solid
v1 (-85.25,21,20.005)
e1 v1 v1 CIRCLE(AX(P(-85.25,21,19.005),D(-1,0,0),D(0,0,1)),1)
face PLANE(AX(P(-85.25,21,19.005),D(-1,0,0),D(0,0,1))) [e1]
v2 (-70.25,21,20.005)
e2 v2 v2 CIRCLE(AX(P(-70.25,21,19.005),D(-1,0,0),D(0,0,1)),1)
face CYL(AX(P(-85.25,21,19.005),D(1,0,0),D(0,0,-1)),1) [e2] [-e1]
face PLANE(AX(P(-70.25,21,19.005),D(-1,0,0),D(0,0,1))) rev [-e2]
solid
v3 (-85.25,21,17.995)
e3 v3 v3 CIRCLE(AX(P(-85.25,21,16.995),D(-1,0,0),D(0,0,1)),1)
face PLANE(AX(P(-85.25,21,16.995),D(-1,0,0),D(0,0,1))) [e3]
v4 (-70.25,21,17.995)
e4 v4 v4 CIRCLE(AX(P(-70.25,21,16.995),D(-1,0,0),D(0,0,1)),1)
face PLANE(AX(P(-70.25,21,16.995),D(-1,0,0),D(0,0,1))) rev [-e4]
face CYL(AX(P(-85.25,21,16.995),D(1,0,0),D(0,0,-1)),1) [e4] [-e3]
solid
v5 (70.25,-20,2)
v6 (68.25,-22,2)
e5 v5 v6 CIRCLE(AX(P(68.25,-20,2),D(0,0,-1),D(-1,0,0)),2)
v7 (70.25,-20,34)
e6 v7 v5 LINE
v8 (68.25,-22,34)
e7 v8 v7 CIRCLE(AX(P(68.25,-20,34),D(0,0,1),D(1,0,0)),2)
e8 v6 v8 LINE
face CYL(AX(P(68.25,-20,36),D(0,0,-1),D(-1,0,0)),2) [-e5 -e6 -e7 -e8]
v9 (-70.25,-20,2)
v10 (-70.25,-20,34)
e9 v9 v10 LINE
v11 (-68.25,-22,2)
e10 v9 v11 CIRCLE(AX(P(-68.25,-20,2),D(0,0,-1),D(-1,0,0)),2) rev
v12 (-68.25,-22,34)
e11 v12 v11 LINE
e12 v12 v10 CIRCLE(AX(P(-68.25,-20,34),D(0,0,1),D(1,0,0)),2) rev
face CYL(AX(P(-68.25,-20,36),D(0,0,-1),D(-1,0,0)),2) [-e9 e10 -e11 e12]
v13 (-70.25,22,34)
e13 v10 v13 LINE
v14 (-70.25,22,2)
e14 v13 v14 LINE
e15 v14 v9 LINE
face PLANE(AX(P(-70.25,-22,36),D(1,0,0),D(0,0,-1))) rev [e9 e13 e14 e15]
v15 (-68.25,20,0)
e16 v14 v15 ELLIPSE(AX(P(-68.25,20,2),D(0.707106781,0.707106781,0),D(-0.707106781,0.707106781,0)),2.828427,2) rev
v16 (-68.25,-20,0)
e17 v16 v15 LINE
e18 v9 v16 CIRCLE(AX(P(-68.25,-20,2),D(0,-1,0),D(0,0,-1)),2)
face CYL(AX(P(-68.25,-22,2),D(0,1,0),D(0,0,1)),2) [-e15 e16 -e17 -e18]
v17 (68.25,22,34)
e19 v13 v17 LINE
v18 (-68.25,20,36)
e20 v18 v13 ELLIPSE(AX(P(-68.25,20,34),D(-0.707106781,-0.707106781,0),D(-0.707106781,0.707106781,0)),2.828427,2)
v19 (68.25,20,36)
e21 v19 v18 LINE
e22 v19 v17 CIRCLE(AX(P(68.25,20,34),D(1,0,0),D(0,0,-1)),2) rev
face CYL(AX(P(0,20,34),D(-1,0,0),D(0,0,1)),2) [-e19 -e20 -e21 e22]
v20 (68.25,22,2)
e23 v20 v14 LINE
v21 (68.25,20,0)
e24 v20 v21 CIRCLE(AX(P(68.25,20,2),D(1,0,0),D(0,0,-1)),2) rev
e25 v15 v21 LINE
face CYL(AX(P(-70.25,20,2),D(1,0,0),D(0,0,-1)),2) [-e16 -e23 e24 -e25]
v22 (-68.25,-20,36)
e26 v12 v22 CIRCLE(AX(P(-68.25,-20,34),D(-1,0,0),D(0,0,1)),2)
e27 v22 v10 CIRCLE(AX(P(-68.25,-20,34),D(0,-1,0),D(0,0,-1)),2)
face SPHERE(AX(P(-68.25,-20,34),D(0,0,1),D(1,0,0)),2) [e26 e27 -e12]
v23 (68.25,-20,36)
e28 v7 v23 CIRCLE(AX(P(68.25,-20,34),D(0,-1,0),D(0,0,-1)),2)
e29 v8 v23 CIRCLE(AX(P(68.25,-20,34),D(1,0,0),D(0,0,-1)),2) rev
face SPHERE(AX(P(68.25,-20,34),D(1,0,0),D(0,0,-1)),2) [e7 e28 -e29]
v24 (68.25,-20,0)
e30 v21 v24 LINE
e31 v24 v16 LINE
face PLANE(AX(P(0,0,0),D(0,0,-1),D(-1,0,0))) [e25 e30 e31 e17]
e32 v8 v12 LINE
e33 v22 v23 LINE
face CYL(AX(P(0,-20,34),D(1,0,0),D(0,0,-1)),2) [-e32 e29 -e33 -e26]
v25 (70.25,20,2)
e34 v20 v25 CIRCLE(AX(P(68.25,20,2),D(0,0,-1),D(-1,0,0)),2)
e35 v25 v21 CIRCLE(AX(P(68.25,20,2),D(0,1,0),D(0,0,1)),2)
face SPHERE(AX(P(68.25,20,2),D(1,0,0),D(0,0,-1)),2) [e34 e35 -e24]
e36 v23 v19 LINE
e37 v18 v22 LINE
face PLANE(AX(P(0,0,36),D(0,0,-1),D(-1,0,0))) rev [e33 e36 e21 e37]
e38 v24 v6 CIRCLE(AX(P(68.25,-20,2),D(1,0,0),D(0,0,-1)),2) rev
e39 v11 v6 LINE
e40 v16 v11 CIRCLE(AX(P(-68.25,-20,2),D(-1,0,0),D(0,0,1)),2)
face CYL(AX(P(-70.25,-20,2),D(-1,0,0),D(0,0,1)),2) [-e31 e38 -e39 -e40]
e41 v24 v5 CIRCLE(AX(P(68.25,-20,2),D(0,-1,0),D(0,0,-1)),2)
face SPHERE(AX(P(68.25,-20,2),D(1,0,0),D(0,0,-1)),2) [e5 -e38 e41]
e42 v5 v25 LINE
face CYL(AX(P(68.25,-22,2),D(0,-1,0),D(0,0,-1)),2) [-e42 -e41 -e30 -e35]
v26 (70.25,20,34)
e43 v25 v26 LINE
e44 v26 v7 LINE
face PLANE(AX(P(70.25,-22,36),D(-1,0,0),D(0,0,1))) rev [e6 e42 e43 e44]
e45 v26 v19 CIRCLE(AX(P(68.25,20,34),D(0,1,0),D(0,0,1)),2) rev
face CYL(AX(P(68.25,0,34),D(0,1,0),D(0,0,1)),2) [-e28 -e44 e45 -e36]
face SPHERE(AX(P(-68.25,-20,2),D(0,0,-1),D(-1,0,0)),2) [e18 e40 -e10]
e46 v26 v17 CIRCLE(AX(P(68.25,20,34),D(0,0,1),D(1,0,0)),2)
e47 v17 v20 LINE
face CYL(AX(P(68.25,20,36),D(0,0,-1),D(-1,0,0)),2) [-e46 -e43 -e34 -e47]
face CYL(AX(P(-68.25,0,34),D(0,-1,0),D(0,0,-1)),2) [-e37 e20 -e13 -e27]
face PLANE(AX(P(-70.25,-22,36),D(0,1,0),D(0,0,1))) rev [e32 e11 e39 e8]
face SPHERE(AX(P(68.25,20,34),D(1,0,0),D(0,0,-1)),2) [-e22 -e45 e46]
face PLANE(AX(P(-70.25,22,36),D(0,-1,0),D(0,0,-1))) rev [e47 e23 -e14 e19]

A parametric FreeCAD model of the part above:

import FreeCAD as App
import Part
import Sketcher
from FreeCAD import Vector


def edges_at(feature, points):
    """Names of the edges that pass closest to the given points."""
    edges = feature.Shape.Edges
    near = lambda p: min(range(len(edges)), key=lambda i: edges[i].distToShape(Part.Vertex(*p))[0])
    return sorted({f"Edge{near(p) + 1}" for p in points})

doc = App.newDocument("Part")
body = doc.addObject("PartDesign::Body", "Body")

sketch1 = body.newObject("Sketcher::SketchObject", "Sketch")
sketch1.AttachmentSupport = (doc.getObject("XY_Plane"), [""])
sketch1.MapMode = "FlatFace"
sketch1.addGeometry(Part.LineSegment(Vector(-70, 22, 0), Vector(-70, -22, 0)), False)
sketch1.addGeometry(Part.LineSegment(Vector(-70, -22, 0), Vector(70, -22, 0)), False)
sketch1.addGeometry(Part.LineSegment(Vector(70, -22, 0), Vector(70, 22, 0)), False)
sketch1.addGeometry(Part.LineSegment(Vector(70, 22, 0), Vector(-70, 22, 0)), False)
sketch1.addConstraint(Sketcher.Constraint("Coincident", 0, 2, 1, 1))
sketch1.addConstraint(Sketcher.Constraint("Coincident", 1, 2, 2, 1))
sketch1.addConstraint(Sketcher.Constraint("Coincident", 2, 2, 3, 1))
sketch1.addConstraint(Sketcher.Constraint("Coincident", 3, 2, 0, 1))
sketch1.addConstraint(Sketcher.Constraint("Vertical", 0))
sketch1.addConstraint(Sketcher.Constraint("Horizontal", 1))
sketch1.addConstraint(Sketcher.Constraint("Vertical", 2))
sketch1.addConstraint(Sketcher.Constraint("Horizontal", 3))
sketch1.addConstraint(Sketcher.Constraint("Symmetric", 0, 2, 2, 2, -1, 1))
sketch1.addConstraint(Sketcher.Constraint("DistanceY", 0, 2, 0, 1, 44.0))
sketch1.addConstraint(Sketcher.Constraint("DistanceX", 1, 1, 1, 2, 140.5))
pad1 = body.newObject("PartDesign::Pad", "Pad")
pad1.Profile = sketch1
pad1.Length = 36
doc.recompute()

fillet = body.newObject("PartDesign::Fillet", "Fillet")
fillet.Base = (pad1, edges_at(pad1, [
    (-70.25, 0, 36),
    (0, -22, 36),
    (70.25, 0, 36),
    (0, -22, 0),
    (-70.25, 0, 0),
    (0, 22, 0),
    (70.25, 0, 0),
    (70.25, -22, 18),
    (-70.25, -22, 18),
    (70.25, 22, 18),
    (0, 22, 36),
]))
fillet.Radius = 2
body2 = doc.addObject("PartDesign::Body", "Body001")

sketch2 = body2.newObject("Sketcher::SketchObject", "Sketch001")
sketch2.AttachmentSupport = (doc.getObject("YZ_Plane001"), [""])
sketch2.MapMode = "FlatFace"
sketch2.AttachmentOffset = App.Placement(Vector(0, 0, -70.25), App.Rotation())
sketch2.addGeometry(Part.Circle(Vector(21, 17, 0), Vector(0, 0, 1), 1), False)
sketch2.addConstraint(Sketcher.Constraint("Diameter", 0, 2.0))
sketch2.addConstraint(Sketcher.Constraint("DistanceX", -1, 1, 0, 3, 21.0))
sketch2.addConstraint(Sketcher.Constraint("DistanceY", -1, 1, 0, 3, 16.995))
pad2 = body2.newObject("PartDesign::Pad", "Pad001")
pad2.Profile = sketch2
pad2.Length = 15
pad2.Reversed = True
body3 = doc.addObject("PartDesign::Body", "Body002")

sketch3 = body3.newObject("Sketcher::SketchObject", "Sketch002")
sketch3.AttachmentSupport = (doc.getObject("YZ_Plane002"), [""])
sketch3.MapMode = "FlatFace"
sketch3.AttachmentOffset = App.Placement(Vector(0, 0, -70.25), App.Rotation())
sketch3.addGeometry(Part.Circle(Vector(21, 19, 0), Vector(0, 0, 1), 1), False)
sketch3.addConstraint(Sketcher.Constraint("Diameter", 0, 2.0))
sketch3.addConstraint(Sketcher.Constraint("DistanceX", -1, 1, 0, 3, 21.0))
sketch3.addConstraint(Sketcher.Constraint("DistanceY", -1, 1, 0, 3, 19.005))
pad3 = body3.newObject("PartDesign::Pad", "Pad002")
pad3.Profile = sketch3
pad3.Length = 15
pad3.Reversed = True

doc.recompute()
